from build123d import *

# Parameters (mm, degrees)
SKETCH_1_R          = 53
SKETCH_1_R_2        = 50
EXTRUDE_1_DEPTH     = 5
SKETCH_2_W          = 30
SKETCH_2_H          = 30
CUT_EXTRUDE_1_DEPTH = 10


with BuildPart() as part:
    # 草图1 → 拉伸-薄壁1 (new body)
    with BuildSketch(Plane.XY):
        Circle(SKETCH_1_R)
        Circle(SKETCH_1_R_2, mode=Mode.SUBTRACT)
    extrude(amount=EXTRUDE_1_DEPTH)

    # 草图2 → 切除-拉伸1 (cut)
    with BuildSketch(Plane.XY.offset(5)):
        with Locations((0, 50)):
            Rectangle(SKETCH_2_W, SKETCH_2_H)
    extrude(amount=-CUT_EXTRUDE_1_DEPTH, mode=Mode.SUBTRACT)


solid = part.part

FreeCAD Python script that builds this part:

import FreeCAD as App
import Part
import Sketcher
from FreeCAD import Vector
Q = App.Units.Quantity

doc = App.newDocument("Part")
params = doc.addObject("Spreadsheet::Sheet", "Params")
for row, (alias, value) in enumerate([
    ("sketch1_diameter", "106 mm"),
    ("sketch1_diameter2", "100 mm"),
    ("pad1_length", "5 mm"),
    ("sketch2_width", "30 mm"),
    ("pocket1_length", "10 mm"),
], start=1):
    params.set(f"A{row}", alias)
    params.set(f"B{row}", "=" + value)
    params.setAlias(f"B{row}", alias)

body = doc.addObject("PartDesign::Body", "Body")

# Sketch on XY plane
sketch1 = doc.addObject("Sketcher::SketchObject", "Sketch")
body.addObject(sketch1)
sketch1.AttachmentSupport = (doc.XY_Plane, [""])
sketch1.MapMode = "FlatFace"
sketch1.addGeometry(Part.Circle(Vector(0, 0, 0), Vector(0, 0, 1), 53), False)
sketch1.addGeometry(Part.Circle(Vector(0, 0, 0), Vector(0, 0, 1), 50), False)
sketch1.addConstraint(Sketcher.Constraint("Coincident", 0, 3, -1, 1))
sketch1.addConstraint(Sketcher.Constraint("Coincident", 1, 3, -1, 1))
sketch1.addConstraint(Sketcher.Constraint("Diameter", 0, Q("106 mm")))
sketch1.addConstraint(Sketcher.Constraint("Diameter", 1, Q("100 mm")))
sketch1.setExpression("Constraints[2]", "Params.sketch1_diameter")
sketch1.setExpression("Constraints[3]", "Params.sketch1_diameter2")
pad1 = doc.addObject("PartDesign::Pad", "Pad")
body.addObject(pad1)
pad1.Profile = sketch1
pad1.setExpression("Length", "Params.pad1_length")

# Sketch on XY plane
sketch2 = doc.addObject("Sketcher::SketchObject", "Sketch001")
body.addObject(sketch2)
sketch2.AttachmentSupport = (doc.XY_Plane, [""])
sketch2.MapMode = "FlatFace"
sketch2.AttachmentOffset = App.Placement(Vector(0, 0, 5), App.Rotation())
sketch2.addGeometry(Part.LineSegment(Vector(-15, 65, 0), Vector(-15, 35, 0)), False)
sketch2.addGeometry(Part.LineSegment(Vector(-15, 35, 0), Vector(15, 35, 0)), False)
sketch2.addGeometry(Part.LineSegment(Vector(15, 35, 0), Vector(15, 65, 0)), False)
sketch2.addGeometry(Part.LineSegment(Vector(15, 65, 0), Vector(-15, 65, 0)), False)
sketch2.addConstraint(Sketcher.Constraint("Coincident", 0, 2, 1, 1))
sketch2.addConstraint(Sketcher.Constraint("Coincident", 1, 2, 2, 1))
sketch2.addConstraint(Sketcher.Constraint("Coincident", 2, 2, 3, 1))
sketch2.addConstraint(Sketcher.Constraint("Coincident", 3, 2, 0, 1))
sketch2.addConstraint(Sketcher.Constraint("Vertical", 0))
sketch2.addConstraint(Sketcher.Constraint("Horizontal", 1))
sketch2.addConstraint(Sketcher.Constraint("Vertical", 2))
sketch2.addConstraint(Sketcher.Constraint("Horizontal", 3))
sketch2.addConstraint(Sketcher.Constraint("Equal", 3, 0))
sketch2.addConstraint(Sketcher.Constraint("DistanceX", 1, 1, 1, 2, Q("30 mm")))
sketch2.addConstraint(Sketcher.Constraint("DistanceX", 0, 2, -1, 1, Q("15 mm")))
sketch2.addConstraint(Sketcher.Constraint("DistanceY", -1, 1, 0, 2, Q("35 mm")))
sketch2.setExpression("Constraints[9]", "Params.sketch2_width")
pocket1 = doc.addObject("PartDesign::Pocket", "Pocket")
body.addObject(pocket1)
pocket1.Profile = sketch2
pocket1.setExpression("Length", "Params.pocket1_length")

doc.recompute()
